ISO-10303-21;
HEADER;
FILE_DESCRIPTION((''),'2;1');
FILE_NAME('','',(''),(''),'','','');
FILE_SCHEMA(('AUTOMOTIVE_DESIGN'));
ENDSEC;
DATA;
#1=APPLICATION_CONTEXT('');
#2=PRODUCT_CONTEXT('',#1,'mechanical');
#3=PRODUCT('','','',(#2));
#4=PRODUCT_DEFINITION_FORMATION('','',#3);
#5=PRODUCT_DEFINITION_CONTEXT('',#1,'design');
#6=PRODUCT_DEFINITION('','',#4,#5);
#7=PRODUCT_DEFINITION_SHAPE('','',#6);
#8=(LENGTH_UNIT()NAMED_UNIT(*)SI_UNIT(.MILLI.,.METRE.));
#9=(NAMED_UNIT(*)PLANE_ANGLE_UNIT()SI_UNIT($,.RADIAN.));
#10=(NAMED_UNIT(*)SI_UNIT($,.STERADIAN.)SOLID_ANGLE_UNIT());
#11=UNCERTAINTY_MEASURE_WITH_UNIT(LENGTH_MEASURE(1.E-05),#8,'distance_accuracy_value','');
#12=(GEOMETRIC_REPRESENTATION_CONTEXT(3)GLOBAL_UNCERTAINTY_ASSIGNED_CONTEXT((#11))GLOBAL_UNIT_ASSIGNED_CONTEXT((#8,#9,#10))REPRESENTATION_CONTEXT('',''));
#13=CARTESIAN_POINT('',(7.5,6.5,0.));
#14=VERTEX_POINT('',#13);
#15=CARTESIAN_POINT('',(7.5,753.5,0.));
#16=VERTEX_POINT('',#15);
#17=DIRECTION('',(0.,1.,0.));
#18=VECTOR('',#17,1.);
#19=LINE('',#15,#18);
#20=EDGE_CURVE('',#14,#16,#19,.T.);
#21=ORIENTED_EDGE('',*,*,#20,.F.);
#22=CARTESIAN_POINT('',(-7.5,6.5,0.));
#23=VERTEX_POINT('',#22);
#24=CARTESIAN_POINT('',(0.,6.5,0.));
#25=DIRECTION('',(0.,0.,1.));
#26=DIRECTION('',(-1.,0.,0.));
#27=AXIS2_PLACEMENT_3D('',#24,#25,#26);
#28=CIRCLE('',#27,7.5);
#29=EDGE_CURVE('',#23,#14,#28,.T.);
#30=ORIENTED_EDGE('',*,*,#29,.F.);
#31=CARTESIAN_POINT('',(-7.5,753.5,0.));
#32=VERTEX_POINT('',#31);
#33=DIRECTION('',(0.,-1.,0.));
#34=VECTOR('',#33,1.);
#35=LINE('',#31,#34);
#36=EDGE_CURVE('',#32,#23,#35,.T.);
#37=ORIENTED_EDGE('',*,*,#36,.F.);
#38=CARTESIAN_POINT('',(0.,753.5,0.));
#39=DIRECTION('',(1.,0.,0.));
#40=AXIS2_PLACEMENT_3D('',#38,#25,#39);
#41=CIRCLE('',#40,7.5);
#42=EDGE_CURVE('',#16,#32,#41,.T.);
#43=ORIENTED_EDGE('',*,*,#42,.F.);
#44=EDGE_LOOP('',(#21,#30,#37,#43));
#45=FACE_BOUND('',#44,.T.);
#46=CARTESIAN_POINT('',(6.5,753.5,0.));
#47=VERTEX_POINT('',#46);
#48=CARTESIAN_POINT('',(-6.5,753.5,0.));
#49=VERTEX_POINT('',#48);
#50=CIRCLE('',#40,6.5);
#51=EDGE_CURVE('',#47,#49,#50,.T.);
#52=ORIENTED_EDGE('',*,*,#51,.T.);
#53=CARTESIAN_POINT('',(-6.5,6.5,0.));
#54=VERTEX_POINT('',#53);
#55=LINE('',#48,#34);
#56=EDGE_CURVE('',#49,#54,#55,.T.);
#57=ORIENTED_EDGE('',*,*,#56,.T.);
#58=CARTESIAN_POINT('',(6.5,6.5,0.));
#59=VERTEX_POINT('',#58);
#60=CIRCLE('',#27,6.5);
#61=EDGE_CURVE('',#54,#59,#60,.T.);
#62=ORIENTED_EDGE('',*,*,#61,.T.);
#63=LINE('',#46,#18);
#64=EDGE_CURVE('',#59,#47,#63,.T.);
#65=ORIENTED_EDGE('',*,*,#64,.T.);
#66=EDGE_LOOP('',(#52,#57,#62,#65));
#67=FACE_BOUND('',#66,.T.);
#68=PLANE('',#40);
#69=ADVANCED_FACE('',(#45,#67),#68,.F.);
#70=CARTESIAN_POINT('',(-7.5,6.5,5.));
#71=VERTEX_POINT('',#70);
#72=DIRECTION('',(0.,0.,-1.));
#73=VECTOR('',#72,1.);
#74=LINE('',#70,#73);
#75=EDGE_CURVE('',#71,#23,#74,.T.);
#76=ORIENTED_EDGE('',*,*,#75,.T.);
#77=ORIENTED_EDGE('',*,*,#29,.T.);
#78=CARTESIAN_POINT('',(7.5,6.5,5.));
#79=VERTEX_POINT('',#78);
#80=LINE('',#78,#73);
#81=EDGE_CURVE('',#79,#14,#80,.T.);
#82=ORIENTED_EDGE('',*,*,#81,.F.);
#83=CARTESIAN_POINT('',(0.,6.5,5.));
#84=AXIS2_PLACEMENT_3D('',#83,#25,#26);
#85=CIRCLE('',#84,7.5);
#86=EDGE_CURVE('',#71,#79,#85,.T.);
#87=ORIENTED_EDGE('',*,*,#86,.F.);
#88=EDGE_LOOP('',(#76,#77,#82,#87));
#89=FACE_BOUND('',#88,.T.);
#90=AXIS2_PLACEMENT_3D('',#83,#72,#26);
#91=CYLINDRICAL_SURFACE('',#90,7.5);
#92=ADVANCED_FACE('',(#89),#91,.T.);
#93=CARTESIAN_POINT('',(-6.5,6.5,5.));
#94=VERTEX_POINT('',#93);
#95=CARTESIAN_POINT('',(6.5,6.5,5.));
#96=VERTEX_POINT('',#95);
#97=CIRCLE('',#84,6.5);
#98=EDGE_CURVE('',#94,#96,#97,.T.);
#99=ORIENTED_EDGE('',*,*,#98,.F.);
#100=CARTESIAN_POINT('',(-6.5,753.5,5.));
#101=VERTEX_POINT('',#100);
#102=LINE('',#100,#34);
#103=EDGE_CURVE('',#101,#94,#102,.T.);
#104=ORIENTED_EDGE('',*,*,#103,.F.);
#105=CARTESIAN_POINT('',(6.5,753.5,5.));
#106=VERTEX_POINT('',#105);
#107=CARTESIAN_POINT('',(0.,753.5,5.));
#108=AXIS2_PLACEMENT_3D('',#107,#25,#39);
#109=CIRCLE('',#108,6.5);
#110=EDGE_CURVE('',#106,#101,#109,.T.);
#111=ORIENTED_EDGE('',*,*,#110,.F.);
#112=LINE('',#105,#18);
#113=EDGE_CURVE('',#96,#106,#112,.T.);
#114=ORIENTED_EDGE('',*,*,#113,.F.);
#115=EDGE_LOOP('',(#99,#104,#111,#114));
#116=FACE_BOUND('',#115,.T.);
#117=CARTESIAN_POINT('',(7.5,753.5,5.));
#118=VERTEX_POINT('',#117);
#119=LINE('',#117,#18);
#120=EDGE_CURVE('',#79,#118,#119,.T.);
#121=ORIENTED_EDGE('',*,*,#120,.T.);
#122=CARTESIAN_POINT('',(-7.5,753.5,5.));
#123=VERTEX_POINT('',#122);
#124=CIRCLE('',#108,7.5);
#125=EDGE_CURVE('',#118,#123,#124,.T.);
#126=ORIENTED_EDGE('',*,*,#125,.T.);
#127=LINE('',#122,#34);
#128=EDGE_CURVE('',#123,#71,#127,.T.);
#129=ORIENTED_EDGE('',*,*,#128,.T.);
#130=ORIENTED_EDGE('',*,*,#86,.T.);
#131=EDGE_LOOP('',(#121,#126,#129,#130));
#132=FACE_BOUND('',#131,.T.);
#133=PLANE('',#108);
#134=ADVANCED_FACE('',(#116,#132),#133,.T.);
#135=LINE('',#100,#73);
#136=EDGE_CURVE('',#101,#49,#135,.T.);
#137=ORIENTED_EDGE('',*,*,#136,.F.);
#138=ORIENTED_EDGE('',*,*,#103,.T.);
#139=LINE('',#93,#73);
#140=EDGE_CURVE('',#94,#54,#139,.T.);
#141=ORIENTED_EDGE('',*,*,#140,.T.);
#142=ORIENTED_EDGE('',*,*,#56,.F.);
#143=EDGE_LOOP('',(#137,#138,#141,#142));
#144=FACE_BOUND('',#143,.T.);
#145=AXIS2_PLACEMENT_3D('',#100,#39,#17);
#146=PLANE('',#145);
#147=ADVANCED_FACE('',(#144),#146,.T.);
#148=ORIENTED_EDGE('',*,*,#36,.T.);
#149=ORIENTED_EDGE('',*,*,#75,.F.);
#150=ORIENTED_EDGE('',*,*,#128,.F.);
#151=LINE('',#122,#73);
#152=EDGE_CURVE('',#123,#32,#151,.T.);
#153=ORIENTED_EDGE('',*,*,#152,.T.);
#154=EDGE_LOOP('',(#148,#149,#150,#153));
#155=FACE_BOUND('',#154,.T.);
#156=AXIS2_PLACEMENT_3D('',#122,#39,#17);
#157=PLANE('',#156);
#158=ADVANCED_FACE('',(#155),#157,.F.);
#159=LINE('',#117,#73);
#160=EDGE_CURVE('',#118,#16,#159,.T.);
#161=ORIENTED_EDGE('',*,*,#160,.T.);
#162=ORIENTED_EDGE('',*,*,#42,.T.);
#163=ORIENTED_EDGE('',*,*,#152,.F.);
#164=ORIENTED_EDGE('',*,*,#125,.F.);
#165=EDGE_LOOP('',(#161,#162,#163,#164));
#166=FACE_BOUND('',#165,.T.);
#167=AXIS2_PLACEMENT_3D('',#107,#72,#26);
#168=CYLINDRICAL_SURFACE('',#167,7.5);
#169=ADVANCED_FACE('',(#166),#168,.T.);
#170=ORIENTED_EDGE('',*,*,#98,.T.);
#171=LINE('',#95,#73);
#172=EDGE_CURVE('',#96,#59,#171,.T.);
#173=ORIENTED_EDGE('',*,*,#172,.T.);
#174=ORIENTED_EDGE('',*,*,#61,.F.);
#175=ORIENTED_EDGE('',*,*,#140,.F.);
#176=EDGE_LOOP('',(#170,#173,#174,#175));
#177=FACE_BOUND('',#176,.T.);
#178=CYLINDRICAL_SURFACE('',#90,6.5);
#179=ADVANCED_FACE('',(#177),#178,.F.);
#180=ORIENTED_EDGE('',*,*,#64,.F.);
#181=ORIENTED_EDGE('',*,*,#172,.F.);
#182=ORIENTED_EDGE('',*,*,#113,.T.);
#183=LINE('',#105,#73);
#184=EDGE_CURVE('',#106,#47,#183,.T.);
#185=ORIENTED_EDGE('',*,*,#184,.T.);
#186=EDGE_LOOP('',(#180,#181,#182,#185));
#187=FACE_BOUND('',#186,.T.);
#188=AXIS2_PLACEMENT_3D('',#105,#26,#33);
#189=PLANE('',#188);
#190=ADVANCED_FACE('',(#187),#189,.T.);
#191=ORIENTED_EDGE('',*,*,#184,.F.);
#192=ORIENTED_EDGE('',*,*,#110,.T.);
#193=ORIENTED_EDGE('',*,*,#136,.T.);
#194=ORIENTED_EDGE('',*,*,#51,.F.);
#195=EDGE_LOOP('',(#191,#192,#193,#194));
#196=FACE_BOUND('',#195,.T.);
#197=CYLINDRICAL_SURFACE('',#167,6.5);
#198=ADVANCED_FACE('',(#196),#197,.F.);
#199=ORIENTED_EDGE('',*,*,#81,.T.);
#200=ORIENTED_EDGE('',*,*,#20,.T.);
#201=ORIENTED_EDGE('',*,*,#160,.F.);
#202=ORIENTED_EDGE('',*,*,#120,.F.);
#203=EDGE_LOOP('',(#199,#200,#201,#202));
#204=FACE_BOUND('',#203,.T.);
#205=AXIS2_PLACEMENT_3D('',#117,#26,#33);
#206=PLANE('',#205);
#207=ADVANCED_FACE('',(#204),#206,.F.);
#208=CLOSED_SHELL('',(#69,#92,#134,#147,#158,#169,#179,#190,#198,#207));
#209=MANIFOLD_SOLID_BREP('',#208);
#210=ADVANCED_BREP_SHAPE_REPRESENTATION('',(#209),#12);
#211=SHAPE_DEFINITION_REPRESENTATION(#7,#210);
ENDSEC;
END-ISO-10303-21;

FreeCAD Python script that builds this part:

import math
import FreeCAD as App
import Part
import Sketcher

doc = App.newDocument("Part")
body = doc.addObject("PartDesign::Body", "Body")

# Sketch on XY plane
sketch1 = body.newObject("Sketcher::SketchObject", "Sketch")
sketch1.AttachmentSupport = (doc.getObject("XY_Plane"), [""])
sketch1.MapMode = "FlatFace"
sketch1.addGeometry([
    Part.LineSegment(App.Vector(7.5, 6.5, 0), App.Vector(7.5, 753.5, 0)),  # 0
    Part.ArcOfCircle(Part.Circle(App.Vector(0, 753.5, 0), App.Vector(0, 0, 1), 7.5), math.radians(0), math.radians(180)),  # 1
    Part.LineSegment(App.Vector(-7.5, 753.5, 0), App.Vector(-7.5, 6.5, 0)),  # 2
    Part.ArcOfCircle(Part.Circle(App.Vector(0, 6.5, 0), App.Vector(0, 0, 1), 7.5), math.radians(180), math.radians(360)),  # 3
    Part.LineSegment(App.Vector(6.5, 753.5, 0), App.Vector(6.5, 6.5, 0)),  # 4
    Part.ArcOfCircle(Part.Circle(App.Vector(0, 6.5, 0), App.Vector(0, 0, 1), 6.5), math.radians(180), math.radians(360)),  # 5
    Part.LineSegment(App.Vector(-6.5, 6.5, 0), App.Vector(-6.5, 753.5, 0)),  # 6
    Part.ArcOfCircle(Part.Circle(App.Vector(0, 753.5, 0), App.Vector(0, 0, 1), 6.5), math.radians(0), math.radians(180)),  # 7
], False)
sketch1.addConstraint([
    Sketcher.Constraint("Tangent", 0, 2, 1, 1),
    Sketcher.Constraint("Tangent", 1, 2, 2, 1),
    Sketcher.Constraint("Tangent", 2, 2, 3, 1),
    Sketcher.Constraint("Tangent", 3, 2, 0, 1),
    Sketcher.Constraint("Tangent", 4, 2, 5, 2),
    Sketcher.Constraint("Tangent", 5, 1, 6, 1),
    Sketcher.Constraint("Tangent", 6, 2, 7, 2),
    Sketcher.Constraint("Tangent", 7, 1, 4, 1),
    Sketcher.Constraint("Vertical", 0),
    Sketcher.Constraint("Vertical", 2),
    Sketcher.Constraint("Vertical", 4),
    Sketcher.Constraint("Vertical", 6),
    Sketcher.Constraint("Coincident", 5, 3, 3, 3),
    Sketcher.Constraint("PointOnObject", 1, 3, -2),
    Sketcher.Constraint("Horizontal", 7, 3, 0, 2),
    Sketcher.Constraint("Radius", 1, 7.5),
    Sketcher.Constraint("Radius", 5, 6.5),
    Sketcher.Constraint("DistanceY", 0, 1, 0, 2, 747.0),
    Sketcher.Constraint("DistanceY", -1, 1, 1, 3, 753.5),
])
pad1 = body.newObject("PartDesign::Pad", "Pad")
pad1.Profile = sketch1
pad1.Length = 5

doc.recompute()
